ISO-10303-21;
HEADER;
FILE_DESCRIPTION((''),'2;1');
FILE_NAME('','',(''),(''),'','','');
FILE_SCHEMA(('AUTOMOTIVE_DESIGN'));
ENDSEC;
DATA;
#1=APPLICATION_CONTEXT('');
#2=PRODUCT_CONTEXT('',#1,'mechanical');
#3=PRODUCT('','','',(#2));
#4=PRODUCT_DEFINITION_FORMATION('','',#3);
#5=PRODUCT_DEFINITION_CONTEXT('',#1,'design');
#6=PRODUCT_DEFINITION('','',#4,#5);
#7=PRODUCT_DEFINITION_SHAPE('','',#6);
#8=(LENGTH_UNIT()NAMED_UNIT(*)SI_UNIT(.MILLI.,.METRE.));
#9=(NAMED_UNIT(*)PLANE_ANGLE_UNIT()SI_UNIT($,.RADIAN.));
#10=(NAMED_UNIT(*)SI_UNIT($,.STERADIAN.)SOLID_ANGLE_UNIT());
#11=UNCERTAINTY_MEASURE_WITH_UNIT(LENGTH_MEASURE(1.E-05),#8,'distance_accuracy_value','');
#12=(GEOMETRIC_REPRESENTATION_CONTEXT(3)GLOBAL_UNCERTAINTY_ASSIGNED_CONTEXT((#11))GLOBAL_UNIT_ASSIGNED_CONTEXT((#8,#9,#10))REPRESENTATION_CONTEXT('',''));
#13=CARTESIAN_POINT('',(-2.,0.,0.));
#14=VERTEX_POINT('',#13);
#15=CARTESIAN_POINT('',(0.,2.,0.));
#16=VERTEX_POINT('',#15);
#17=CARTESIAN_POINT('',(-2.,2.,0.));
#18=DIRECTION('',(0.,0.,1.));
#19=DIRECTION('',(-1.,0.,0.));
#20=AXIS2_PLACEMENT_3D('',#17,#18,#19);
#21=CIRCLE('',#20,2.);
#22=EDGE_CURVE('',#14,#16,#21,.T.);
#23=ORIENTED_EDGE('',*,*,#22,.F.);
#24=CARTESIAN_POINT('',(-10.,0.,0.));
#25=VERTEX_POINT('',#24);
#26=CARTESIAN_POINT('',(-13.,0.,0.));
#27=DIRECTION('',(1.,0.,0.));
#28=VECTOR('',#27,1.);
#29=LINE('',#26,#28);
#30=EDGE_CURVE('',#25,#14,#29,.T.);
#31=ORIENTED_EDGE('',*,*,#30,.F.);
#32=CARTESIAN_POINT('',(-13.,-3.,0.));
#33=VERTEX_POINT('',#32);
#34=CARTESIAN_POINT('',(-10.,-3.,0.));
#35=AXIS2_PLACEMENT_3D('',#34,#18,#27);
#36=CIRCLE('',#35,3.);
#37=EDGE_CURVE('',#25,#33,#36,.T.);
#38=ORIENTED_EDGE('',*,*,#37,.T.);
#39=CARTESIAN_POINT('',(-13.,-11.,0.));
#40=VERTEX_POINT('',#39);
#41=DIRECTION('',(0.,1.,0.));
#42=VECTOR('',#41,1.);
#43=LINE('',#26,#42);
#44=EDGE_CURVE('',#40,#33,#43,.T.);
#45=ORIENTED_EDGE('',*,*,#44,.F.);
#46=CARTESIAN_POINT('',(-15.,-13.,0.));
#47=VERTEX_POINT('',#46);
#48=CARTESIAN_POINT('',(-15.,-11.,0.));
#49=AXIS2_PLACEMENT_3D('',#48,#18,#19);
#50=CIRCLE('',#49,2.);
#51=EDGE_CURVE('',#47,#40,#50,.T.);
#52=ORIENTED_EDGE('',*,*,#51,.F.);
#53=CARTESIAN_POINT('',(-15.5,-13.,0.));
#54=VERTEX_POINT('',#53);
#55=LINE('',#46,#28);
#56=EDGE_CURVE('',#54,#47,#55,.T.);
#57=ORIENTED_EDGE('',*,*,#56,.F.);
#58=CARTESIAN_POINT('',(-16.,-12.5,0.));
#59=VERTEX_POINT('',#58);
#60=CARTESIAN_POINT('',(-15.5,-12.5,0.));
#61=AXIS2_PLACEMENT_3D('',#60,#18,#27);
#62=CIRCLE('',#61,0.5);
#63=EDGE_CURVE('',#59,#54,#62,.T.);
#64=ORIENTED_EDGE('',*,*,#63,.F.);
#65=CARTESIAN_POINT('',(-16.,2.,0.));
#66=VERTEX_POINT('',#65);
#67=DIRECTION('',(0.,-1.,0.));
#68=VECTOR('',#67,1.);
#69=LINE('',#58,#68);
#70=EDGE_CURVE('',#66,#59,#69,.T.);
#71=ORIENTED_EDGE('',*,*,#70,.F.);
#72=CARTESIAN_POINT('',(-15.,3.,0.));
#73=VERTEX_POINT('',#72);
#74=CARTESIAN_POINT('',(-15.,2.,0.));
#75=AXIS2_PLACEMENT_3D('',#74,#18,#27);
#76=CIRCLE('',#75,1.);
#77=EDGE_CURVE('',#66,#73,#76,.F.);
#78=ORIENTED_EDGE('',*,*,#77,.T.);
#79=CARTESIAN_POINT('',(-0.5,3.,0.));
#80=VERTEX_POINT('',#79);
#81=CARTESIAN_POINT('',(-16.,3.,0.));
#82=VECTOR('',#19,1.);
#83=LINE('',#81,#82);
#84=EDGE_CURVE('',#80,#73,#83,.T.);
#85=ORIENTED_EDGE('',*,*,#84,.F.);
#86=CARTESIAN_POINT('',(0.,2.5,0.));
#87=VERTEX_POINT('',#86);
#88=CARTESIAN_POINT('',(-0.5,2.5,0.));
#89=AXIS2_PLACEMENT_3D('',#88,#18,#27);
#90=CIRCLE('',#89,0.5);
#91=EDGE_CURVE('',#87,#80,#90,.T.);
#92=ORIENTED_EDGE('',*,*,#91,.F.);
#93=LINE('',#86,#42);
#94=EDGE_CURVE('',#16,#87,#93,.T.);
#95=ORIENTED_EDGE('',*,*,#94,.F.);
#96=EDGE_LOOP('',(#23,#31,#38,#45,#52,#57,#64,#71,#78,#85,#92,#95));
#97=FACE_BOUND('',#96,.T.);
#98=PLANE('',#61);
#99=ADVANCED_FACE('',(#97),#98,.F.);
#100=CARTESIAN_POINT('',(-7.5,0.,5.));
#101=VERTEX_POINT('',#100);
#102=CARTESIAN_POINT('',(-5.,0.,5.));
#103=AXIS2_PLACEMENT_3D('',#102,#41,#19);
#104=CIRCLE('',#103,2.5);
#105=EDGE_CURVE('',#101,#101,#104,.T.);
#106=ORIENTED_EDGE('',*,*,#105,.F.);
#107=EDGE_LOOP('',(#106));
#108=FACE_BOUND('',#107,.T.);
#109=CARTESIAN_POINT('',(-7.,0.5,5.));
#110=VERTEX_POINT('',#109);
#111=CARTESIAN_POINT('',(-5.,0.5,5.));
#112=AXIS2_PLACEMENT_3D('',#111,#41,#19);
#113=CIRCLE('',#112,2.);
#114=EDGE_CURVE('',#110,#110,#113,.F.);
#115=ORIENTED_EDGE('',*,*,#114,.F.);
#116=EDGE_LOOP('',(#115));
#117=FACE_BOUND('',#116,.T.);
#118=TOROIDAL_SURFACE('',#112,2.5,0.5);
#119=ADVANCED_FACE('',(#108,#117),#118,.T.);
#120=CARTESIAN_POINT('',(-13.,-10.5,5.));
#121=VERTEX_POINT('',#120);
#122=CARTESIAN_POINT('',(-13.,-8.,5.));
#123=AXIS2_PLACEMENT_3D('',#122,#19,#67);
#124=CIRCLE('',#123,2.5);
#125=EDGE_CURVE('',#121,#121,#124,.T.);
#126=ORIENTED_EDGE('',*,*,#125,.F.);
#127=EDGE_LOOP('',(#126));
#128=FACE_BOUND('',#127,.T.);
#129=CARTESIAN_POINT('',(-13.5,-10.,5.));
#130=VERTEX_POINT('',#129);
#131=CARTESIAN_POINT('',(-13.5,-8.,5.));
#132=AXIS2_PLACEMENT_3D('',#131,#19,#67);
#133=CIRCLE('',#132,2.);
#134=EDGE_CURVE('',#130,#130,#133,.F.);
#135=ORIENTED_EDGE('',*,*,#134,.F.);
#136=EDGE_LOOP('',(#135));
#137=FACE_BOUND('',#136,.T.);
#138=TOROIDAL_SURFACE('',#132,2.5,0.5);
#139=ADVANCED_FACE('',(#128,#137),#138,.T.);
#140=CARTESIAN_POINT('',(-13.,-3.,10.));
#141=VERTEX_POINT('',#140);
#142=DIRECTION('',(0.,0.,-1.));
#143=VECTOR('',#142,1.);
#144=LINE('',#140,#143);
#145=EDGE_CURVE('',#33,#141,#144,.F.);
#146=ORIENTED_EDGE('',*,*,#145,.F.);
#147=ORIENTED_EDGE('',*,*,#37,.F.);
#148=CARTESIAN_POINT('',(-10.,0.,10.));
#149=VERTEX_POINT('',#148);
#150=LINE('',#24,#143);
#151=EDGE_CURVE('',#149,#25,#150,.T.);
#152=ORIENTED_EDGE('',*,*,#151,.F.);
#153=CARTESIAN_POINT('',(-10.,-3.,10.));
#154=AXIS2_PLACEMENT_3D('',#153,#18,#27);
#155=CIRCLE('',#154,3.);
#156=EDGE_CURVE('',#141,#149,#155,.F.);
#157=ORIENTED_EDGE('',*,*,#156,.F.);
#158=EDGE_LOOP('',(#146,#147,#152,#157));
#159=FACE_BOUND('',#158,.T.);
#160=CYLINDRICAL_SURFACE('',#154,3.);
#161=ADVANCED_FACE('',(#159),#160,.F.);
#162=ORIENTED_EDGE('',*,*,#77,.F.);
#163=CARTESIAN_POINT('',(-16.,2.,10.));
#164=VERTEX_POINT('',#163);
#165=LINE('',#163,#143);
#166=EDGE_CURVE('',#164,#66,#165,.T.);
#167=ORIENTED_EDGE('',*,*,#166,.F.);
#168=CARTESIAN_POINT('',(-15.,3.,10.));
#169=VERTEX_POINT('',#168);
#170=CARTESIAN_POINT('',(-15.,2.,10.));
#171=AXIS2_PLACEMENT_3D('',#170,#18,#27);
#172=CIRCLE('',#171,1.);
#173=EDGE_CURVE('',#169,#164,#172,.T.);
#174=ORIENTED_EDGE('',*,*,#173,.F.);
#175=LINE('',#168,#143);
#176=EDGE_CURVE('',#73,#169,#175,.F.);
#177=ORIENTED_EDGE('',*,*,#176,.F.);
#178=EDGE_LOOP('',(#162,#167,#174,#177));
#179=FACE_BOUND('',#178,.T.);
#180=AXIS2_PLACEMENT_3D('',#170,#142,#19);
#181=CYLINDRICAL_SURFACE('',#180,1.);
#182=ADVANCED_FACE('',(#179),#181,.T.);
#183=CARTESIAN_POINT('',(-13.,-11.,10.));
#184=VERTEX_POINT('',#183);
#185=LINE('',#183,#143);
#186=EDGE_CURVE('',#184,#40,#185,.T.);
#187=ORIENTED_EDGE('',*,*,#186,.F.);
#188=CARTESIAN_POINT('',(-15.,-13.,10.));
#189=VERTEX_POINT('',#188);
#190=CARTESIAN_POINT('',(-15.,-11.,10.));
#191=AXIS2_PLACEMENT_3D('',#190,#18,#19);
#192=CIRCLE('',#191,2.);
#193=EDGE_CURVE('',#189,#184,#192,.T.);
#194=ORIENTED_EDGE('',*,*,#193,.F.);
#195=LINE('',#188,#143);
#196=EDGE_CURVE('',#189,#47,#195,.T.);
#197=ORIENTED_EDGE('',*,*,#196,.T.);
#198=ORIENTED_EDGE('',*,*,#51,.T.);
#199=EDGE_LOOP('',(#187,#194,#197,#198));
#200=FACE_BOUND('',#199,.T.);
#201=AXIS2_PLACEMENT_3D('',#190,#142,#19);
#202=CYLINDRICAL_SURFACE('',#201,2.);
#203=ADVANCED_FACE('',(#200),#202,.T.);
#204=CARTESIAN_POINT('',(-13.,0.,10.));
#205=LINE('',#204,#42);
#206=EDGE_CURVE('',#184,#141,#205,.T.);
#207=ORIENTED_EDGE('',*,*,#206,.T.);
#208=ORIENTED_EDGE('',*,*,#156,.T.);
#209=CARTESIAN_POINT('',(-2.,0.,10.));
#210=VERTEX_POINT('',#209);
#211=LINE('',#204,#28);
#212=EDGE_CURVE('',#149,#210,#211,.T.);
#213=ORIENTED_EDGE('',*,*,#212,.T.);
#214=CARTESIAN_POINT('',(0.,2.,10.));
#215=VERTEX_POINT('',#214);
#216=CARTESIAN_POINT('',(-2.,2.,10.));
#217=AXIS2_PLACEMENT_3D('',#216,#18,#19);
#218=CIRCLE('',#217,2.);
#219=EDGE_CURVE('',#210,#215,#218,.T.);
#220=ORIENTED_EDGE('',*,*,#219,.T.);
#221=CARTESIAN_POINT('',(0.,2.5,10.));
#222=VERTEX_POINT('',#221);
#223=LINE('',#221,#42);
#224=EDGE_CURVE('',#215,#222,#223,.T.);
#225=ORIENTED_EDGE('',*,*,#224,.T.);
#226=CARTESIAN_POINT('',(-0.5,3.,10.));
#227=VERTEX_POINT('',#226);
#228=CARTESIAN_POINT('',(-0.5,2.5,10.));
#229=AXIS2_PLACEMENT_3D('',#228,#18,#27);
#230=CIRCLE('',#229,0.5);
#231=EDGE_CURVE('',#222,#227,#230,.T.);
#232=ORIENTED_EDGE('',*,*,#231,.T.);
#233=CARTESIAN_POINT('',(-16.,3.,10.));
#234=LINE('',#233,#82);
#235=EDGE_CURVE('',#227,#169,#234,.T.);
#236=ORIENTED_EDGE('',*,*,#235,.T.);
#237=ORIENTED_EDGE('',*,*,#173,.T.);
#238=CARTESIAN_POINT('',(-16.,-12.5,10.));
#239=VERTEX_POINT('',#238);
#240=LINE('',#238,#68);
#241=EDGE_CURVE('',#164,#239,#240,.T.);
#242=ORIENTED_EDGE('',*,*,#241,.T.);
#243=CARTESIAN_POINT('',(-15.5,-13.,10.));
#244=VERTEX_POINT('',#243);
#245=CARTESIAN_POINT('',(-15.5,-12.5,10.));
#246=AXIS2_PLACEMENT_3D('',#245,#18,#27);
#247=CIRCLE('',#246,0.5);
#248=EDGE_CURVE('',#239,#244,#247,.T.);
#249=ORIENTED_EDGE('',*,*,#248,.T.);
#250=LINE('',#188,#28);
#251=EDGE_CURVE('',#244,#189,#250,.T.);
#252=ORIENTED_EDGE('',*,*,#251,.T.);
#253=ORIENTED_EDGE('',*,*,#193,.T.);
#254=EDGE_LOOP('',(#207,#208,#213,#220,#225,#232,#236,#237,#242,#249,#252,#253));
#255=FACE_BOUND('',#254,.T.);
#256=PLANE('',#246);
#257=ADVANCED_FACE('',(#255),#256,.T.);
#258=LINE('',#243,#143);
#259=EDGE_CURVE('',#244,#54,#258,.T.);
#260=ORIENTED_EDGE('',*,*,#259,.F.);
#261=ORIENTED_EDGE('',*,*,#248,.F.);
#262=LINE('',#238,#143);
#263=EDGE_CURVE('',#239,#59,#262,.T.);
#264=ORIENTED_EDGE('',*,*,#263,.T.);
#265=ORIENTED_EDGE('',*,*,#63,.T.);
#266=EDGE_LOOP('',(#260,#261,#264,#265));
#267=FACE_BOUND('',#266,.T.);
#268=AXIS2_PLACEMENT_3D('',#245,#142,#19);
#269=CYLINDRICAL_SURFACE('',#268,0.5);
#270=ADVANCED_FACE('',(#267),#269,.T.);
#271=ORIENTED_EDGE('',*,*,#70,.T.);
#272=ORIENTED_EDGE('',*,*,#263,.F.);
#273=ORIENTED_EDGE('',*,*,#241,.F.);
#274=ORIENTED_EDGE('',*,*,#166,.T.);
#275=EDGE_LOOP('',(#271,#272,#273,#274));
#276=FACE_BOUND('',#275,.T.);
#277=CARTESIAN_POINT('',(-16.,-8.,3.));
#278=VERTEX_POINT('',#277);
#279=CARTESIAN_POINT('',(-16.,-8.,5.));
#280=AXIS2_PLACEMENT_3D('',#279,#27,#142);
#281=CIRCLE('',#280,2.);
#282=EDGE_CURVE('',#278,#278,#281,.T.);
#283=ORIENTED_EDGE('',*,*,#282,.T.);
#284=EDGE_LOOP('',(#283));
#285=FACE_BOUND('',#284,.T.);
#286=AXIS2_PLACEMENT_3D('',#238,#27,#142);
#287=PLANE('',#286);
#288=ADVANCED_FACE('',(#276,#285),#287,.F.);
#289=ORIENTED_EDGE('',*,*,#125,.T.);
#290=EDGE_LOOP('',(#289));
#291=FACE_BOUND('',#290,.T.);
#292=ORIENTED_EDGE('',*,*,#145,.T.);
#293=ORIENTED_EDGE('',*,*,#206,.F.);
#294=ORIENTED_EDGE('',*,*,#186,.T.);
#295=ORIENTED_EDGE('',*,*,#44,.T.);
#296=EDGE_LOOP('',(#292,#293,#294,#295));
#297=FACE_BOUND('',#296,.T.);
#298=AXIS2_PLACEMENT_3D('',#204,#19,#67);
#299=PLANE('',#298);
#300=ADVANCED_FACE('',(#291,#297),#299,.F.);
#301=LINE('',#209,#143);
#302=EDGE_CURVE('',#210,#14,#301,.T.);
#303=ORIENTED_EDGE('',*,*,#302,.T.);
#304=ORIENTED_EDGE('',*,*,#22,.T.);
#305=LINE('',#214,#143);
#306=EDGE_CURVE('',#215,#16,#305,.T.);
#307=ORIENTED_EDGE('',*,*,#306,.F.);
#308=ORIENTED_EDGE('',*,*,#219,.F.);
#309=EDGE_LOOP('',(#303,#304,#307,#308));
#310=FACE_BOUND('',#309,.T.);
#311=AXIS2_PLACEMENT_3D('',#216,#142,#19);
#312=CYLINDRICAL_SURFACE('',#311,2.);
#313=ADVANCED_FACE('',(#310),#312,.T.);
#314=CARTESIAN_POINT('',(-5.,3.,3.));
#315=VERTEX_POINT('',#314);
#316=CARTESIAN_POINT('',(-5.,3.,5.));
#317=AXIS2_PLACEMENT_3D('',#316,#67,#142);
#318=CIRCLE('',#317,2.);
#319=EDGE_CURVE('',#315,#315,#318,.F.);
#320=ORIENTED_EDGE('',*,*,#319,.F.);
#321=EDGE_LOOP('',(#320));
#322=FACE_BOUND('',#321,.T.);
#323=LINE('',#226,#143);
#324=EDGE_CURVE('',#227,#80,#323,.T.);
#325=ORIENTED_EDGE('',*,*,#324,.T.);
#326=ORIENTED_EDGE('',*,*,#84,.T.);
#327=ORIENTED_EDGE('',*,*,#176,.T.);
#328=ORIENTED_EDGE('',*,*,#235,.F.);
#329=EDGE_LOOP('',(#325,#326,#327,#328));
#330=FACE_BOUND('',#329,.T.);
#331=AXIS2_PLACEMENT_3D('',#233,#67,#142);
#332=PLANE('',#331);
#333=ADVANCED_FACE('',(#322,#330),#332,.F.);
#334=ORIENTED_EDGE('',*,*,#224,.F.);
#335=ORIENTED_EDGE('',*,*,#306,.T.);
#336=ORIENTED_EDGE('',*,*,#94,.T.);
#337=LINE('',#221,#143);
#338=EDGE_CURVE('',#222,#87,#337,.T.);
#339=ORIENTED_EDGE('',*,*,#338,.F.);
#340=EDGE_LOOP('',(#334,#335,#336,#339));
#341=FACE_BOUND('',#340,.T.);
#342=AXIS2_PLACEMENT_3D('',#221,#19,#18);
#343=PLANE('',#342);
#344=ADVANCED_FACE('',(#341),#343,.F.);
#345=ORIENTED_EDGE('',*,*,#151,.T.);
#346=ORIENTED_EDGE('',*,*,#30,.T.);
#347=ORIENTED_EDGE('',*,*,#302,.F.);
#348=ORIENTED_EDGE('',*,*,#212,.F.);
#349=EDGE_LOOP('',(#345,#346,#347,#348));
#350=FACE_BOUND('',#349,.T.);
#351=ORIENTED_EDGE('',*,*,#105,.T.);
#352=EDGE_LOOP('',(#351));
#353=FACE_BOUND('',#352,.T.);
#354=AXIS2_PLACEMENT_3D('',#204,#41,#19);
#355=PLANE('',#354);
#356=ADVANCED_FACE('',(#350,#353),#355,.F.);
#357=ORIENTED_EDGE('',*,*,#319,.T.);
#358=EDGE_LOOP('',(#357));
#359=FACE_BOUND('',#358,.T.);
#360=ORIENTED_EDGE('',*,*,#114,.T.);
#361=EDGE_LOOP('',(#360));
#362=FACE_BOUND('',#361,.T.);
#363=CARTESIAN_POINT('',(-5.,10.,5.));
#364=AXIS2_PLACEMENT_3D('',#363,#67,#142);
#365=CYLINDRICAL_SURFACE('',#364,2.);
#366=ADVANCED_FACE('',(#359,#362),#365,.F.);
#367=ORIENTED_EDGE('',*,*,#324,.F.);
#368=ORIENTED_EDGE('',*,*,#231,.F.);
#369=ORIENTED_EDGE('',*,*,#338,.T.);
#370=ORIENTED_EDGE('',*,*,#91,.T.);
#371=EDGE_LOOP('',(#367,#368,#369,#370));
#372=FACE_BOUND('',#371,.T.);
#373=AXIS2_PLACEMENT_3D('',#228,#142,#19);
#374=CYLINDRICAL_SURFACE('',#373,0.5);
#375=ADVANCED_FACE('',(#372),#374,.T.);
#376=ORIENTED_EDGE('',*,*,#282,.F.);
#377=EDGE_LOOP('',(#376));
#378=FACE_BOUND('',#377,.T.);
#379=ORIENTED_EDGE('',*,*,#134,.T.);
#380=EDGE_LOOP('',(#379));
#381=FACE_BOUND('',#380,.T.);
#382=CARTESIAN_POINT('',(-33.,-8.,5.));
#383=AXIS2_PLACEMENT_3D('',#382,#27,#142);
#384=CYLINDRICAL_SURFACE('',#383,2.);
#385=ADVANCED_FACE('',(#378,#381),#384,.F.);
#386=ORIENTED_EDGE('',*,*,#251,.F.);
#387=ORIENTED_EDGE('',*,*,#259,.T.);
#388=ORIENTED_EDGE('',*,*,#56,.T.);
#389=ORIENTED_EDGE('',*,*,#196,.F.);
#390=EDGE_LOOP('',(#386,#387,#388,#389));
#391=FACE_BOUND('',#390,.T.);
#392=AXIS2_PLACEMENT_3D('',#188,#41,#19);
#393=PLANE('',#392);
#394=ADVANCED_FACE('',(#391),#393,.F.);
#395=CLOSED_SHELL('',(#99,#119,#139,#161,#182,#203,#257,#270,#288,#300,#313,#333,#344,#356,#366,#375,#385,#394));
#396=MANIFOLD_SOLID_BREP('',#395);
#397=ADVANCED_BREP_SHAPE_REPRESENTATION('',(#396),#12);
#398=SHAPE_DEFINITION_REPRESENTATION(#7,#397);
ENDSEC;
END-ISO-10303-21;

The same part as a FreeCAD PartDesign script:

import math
import FreeCAD as App
import Part
import Sketcher
from FreeCAD import Vector
Q = App.Units.Quantity


def edges_at(feature, points):
    """Names of the edges that pass closest to the given points."""
    edges = feature.Shape.Edges
    near = lambda p: min(range(len(edges)), key=lambda i: edges[i].distToShape(Part.Vertex(*p))[0])
    return sorted({f"Edge{near(p) + 1}" for p in points})

doc = App.newDocument("Part")
body = doc.addObject("PartDesign::Body", "Body")

# Sketch on XY plane
sketch1 = body.newObject("Sketcher::SketchObject", "Sketch")
sketch1.AttachmentSupport = (doc.getObject("XY_Plane"), [""])
sketch1.MapMode = "FlatFace"
sketch1.addGeometry([
    Part.LineSegment(Vector(-13, -11, 0), Vector(-13, 0, 0)),  # 0
    Part.LineSegment(Vector(-13, 0, 0), Vector(-2, 0, 0)),  # 1
    Part.ArcOfCircle(Part.Circle(Vector(-2, 2, 0), Vector(0, 0, 1), 2), math.radians(-90), math.radians(0)),  # 2
    Part.LineSegment(Vector(0, 2, 0), Vector(0, 2.5, 0)),  # 3
    Part.ArcOfCircle(Part.Circle(Vector(-0.5, 2.5, 0), Vector(0, 0, 1), 0.5), math.radians(0), math.radians(90)),  # 4
    Part.LineSegment(Vector(-0.5, 3, 0), Vector(-16, 3, 0)),  # 5
    Part.LineSegment(Vector(-16, 3, 0), Vector(-16, -12.5, 0)),  # 6
    Part.ArcOfCircle(Part.Circle(Vector(-15.5, -12.5, 0), Vector(0, 0, 1), 0.5), math.radians(180), math.radians(270)),  # 7
    Part.LineSegment(Vector(-15.5, -13, 0), Vector(-15, -13, 0)),  # 8
    Part.ArcOfCircle(Part.Circle(Vector(-15, -11, 0), Vector(0, 0, 1), 2), math.radians(-90), math.radians(0)),  # 9
], False)
sketch1.addConstraint([
    Sketcher.Constraint("Coincident", 0, 2, 1, 1),
    Sketcher.Constraint("Tangent", 1, 2, 2, 1),
    Sketcher.Constraint("Tangent", 2, 2, 3, 1),
    Sketcher.Constraint("Tangent", 3, 2, 4, 1),
    Sketcher.Constraint("Tangent", 4, 2, 5, 1),
    Sketcher.Constraint("Coincident", 5, 2, 6, 1),
    Sketcher.Constraint("Tangent", 6, 2, 7, 1),
    Sketcher.Constraint("Tangent", 7, 2, 8, 1),
    Sketcher.Constraint("Tangent", 8, 2, 9, 1),
    Sketcher.Constraint("Tangent", 9, 2, 0, 1),
    Sketcher.Constraint("Vertical", 0),
    Sketcher.Constraint("Horizontal", 1),
    Sketcher.Constraint("Vertical", 3),
    Sketcher.Constraint("Horizontal", 5),
    Sketcher.Constraint("Vertical", 6),
    Sketcher.Constraint("Horizontal", 8),
    Sketcher.Constraint("Equal", 4, 7),
    Sketcher.Constraint("Equal", 2, 9),
    Sketcher.Constraint("PointOnObject", 0, 2, -1),
    Sketcher.Constraint("PointOnObject", 2, 2, -2),
    Sketcher.Constraint("Equal", 1, 0),
    Sketcher.Constraint("Equal", 8, 3),
    Sketcher.Constraint("Radius", 2, Q("2 mm")),
    Sketcher.Constraint("Radius", 4, Q("0.5 mm")),
    Sketcher.Constraint("DistanceX", 1, 1, 1, 2, Q("11 mm")),
    Sketcher.Constraint("DistanceX", 5, 2, 5, 1, Q("15.5 mm")),
])
pad1 = body.newObject("PartDesign::Pad", "Pad")
pad1.Profile = sketch1
pad1.Length = 10

# Sketch on XZ plane
sketch2 = body.newObject("Sketcher::SketchObject", "Sketch001")
sketch2.AttachmentSupport = (doc.getObject("XZ_Plane"), [""])
sketch2.MapMode = "FlatFace"
sketch2.addGeometry(Part.Circle(Vector(-5, 5, 0), Vector(0, 0, 1), 2), False)
sketch2.addConstraint([
    Sketcher.Constraint("Diameter", 0, Q("4 mm")),
    Sketcher.Constraint("DistanceX", 0, 3, -1, 1, Q("5 mm")),
    Sketcher.Constraint("DistanceY", -1, 1, 0, 3, Q("5 mm")),
])
pocket1 = body.newObject("PartDesign::Pocket", "Pocket")
pocket1.Profile = sketch2
pocket1.Length = 10

# Sketch on YZ plane
sketch3 = body.newObject("Sketcher::SketchObject", "Sketch002")
sketch3.AttachmentSupport = (doc.getObject("YZ_Plane"), [""])
sketch3.MapMode = "FlatFace"
sketch3.AttachmentOffset = App.Placement(Vector(0, 0, -13), App.Rotation())
sketch3.addGeometry(Part.Circle(Vector(-8, 5, 0), Vector(0, 0, 1), 2), False)
sketch3.addConstraint([
    Sketcher.Constraint("Diameter", 0, Q("4 mm")),
    Sketcher.Constraint("DistanceX", 0, 3, -1, 1, Q("8 mm")),
    Sketcher.Constraint("DistanceY", -1, 1, 0, 3, Q("5 mm")),
])
pocket2 = body.newObject("PartDesign::Pocket", "Pocket001")
pocket2.Profile = sketch3
pocket2.Length = 20
doc.recompute()

fillet = body.newObject("PartDesign::Fillet", "Fillet")
fillet.Base = (pocket2, edges_at(pocket2, [(-7, 0, 5), (-13, -8, 7)]))
fillet.Radius = 0.5
doc.recompute()

fillet2 = body.newObject("PartDesign::Fillet", "Fillet001")
fillet2.Base = (fillet, edges_at(fillet, [(-13, 0, 5)]))
fillet2.Radius = 3
doc.recompute()

fillet3 = body.newObject("PartDesign::Fillet", "Fillet002")
fillet3.Base = (fillet2, edges_at(fillet2, [(-16, 3, 5)]))
fillet3.Radius = 1

doc.recompute()
